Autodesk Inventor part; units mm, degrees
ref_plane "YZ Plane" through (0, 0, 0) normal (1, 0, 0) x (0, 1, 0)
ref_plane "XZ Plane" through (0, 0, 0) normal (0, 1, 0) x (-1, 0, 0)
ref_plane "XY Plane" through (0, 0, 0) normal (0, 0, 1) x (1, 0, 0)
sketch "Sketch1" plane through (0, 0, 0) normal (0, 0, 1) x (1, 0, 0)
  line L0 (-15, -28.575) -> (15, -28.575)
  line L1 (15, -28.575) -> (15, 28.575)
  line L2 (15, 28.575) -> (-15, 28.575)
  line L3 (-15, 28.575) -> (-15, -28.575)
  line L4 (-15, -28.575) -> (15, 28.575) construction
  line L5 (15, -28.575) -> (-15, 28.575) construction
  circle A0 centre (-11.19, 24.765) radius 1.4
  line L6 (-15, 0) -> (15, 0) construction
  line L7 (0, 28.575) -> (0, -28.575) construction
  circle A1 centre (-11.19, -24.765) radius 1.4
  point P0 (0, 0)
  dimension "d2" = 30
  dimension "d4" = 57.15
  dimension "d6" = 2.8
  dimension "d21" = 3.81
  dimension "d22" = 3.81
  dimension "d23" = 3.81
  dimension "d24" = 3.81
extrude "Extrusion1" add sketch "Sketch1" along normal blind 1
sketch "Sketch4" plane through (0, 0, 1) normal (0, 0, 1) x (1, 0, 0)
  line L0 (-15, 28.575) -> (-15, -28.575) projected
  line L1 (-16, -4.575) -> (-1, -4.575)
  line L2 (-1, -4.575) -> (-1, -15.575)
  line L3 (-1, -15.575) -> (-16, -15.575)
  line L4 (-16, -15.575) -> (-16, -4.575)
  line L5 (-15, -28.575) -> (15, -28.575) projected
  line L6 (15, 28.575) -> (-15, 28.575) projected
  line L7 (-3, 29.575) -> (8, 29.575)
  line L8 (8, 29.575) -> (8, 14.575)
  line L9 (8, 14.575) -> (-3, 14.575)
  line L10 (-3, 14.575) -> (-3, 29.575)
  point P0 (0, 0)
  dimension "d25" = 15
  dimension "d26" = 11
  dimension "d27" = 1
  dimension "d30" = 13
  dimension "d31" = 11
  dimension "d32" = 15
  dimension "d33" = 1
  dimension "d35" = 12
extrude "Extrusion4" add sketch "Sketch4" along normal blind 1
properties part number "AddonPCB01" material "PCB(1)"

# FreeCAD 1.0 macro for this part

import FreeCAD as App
import Part
import Sketcher
Q = App.Units.Quantity


def add_polygon(sketch, points):
    """Adds a closed chain of lines whose ends are joined by coincident constraints."""
    first, n = sketch.GeometryCount, len(points)
    for a, b in zip(points, points[1:] + points[:1]):
        sketch.addGeometry(Part.LineSegment(App.Vector(*a, 0), App.Vector(*b, 0)), False)
    for i in range(n):
        sketch.addConstraint(Sketcher.Constraint("Coincident", first + i, 2, first + (i + 1) % n, 1))

doc = App.newDocument("Part")
body = doc.addObject("PartDesign::Body", "Body")

# Sketch on XY plane
sketch1 = doc.addObject("Sketcher::SketchObject", "Sketch")
body.addObject(sketch1)
sketch1.AttachmentSupport = (doc.XY_Plane, [""])
sketch1.MapMode = "FlatFace"
add_polygon(sketch1, [(-15, 28.6), (-15, -28.6), (15, -28.6), (15, 28.6)])  # lines 0-3
sketch1.addGeometry(Part.Circle(App.Vector(-11.2, -24.8, 0), App.Vector(0, 0, 1), 1.4), False)  # 4
sketch1.addGeometry(Part.Circle(App.Vector(-11.2, 24.8, 0), App.Vector(0, 0, 1), 1.4), False)  # 5
sketch1.addConstraint([
    Sketcher.Constraint("Vertical", 0),
    Sketcher.Constraint("Horizontal", 1),
    Sketcher.Constraint("Vertical", 2),
    Sketcher.Constraint("Horizontal", 3),
    Sketcher.Constraint("Equal", 4, 5),
    Sketcher.Constraint("Symmetric", 0, 2, 2, 2, -1, 1),
    Sketcher.Constraint("Symmetric", 4, 3, 5, 3, -1),
    Sketcher.Constraint("Diameter", 4, Q("2.8 mm")),
    Sketcher.Constraint("DistanceX", 1, 1, 1, 2, Q("30 mm")),
    Sketcher.Constraint("DistanceY", 0, 2, 0, 1, Q("57.15 mm")),
    Sketcher.Constraint("DistanceX", 0, 2, 4, 3, Q("3.81 mm")),
    Sketcher.Constraint("DistanceY", 0, 2, 4, 3, Q("3.81 mm")),
])
pad1 = doc.addObject("PartDesign::Pad", "Pad")
body.addObject(pad1)
pad1.Profile = sketch1
pad1.Length = 1

# Sketch on XY plane
sketch2 = doc.addObject("Sketcher::SketchObject", "Sketch001")
body.addObject(sketch2)
sketch2.AttachmentSupport = (doc.XY_Plane, [""])
sketch2.MapMode = "FlatFace"
sketch2.AttachmentOffset = App.Placement(App.Vector(0, 0, 1), App.Rotation())
add_polygon(sketch2, [(-1, -5), (-16, -5), (-16, -16), (-1, -16)])  # lines 0-3
add_polygon(sketch2, [(-3, 30), (-3, 15), (8, 15), (8, 30)])  # lines 4-7
sketch2.addConstraint([
    Sketcher.Constraint("Horizontal", 0),
    Sketcher.Constraint("Vertical", 1),
    Sketcher.Constraint("Horizontal", 2),
    Sketcher.Constraint("Vertical", 3),
    Sketcher.Constraint("Vertical", 4),
    Sketcher.Constraint("Horizontal", 5),
    Sketcher.Constraint("Vertical", 6),
    Sketcher.Constraint("Horizontal", 7),
    Sketcher.Constraint("Equal", 7, 1),
    Sketcher.Constraint("Equal", 2, 4),
    Sketcher.Constraint("DistanceX", 0, 2, 0, 1, Q("15 mm")),
    Sketcher.Constraint("DistanceX", 5, 1, 5, 2, Q("11 mm")),
    Sketcher.Constraint("DistanceX", 2, 2, -1, 1, Q("1 mm")),
    Sketcher.Constraint("DistanceX", 0, 2, 4, 2, Q("13 mm")),
    Sketcher.Constraint("DistanceY", 3, 2, 4, 2, Q("19.15 mm")),
    Sketcher.Constraint("DistanceY", 0, 2, -1, 1, Q("4.575 mm")),
])
pad2 = doc.addObject("PartDesign::Pad", "Pad001")
body.addObject(pad2)
pad2.Profile = sketch2
pad2.Length = 1

doc.recompute()
